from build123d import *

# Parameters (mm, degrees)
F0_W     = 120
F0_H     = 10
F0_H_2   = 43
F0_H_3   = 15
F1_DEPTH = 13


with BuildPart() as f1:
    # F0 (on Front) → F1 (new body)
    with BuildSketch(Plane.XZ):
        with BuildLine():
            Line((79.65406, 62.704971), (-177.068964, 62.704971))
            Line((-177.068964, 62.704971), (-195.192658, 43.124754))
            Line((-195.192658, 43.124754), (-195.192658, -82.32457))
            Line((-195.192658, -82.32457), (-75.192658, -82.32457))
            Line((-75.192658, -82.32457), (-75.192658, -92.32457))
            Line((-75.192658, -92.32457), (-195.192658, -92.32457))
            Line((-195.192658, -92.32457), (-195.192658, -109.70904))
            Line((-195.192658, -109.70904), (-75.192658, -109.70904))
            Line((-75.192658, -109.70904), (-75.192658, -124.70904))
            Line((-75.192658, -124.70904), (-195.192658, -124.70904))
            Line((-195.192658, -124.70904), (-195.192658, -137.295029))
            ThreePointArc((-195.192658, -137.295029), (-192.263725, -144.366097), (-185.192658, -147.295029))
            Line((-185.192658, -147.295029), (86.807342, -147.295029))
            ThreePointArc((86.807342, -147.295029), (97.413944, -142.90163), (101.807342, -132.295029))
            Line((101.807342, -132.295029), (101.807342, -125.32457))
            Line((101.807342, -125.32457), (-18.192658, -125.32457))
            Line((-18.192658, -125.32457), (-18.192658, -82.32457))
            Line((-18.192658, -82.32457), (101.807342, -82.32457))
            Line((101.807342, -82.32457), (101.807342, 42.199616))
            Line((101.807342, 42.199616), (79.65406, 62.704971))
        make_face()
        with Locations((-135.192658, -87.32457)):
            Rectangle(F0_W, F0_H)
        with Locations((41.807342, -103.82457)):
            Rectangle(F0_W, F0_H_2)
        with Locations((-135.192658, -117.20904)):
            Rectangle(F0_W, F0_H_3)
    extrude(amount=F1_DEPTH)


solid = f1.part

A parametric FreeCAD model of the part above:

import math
import FreeCAD as App
import Part
import Sketcher

V = App.Vector
Q = App.Units.Quantity

doc = App.newDocument("Part")
params = doc.addObject("Spreadsheet::Sheet", "Params")
for row, (alias, value) in enumerate([
    ("sketch1_radius", "10.000001 mm"),
    ("sketch1_radius2", "15.000001 mm"),
    ("sketch1_width", "272 mm"),
    ("pad1_length", "13 mm"),
], start=1):
    params.set(f"A{row}", alias)
    params.set(f"B{row}", "=" + value)
    params.setAlias(f"B{row}", alias)

body = doc.addObject("PartDesign::Body", "Body")

# Sketch on XZ plane
sketch1 = body.newObject("Sketcher::SketchObject", "Sketch")
sketch1.AttachmentSupport = (doc.getObject("XZ_Plane"), [""])
sketch1.MapMode = "FlatFace"
sketch1.addGeometry([
    Part.LineSegment(V(80, 63, 0), V(-177, 63, 0)),  # 0
    Part.LineSegment(V(-177, 63, 0), V(-195, 43, 0)),  # 1
    Part.LineSegment(V(-195, 43, 0), V(-195, -137, 0)),  # 2
    Part.ArcOfCircle(Part.Circle(V(-185, -137, 0), V(0, 0, 1), 10), math.radians(-180), math.radians(-90)),  # 3
    Part.LineSegment(V(-185, -147, 0), V(87, -147, 0)),  # 4
    Part.ArcOfCircle(Part.Circle(V(87, -132, 0), V(0, 0, 1), 15), math.radians(-90), math.radians(0)),  # 5
    Part.LineSegment(V(102, -132, 0), V(102, 42, 0)),  # 6
    Part.LineSegment(V(102, 42, 0), V(80, 63, 0)),  # 7
], False)
sketch1.addConstraint([
    Sketcher.Constraint("Coincident", 0, 2, 1, 1),
    Sketcher.Constraint("Coincident", 1, 2, 2, 1),
    Sketcher.Constraint("Tangent", 2, 2, 3, 1),
    Sketcher.Constraint("Tangent", 3, 2, 4, 1),
    Sketcher.Constraint("Tangent", 4, 2, 5, 1),
    Sketcher.Constraint("Tangent", 5, 2, 6, 1),
    Sketcher.Constraint("Coincident", 6, 2, 7, 1),
    Sketcher.Constraint("Coincident", 7, 2, 0, 1),
    Sketcher.Constraint("Horizontal", 0),
    Sketcher.Constraint("Vertical", 2),
    Sketcher.Constraint("Horizontal", 4),
    Sketcher.Constraint("Vertical", 6),
    Sketcher.Constraint("Perpendicular", 1, 7),
    Sketcher.Constraint("Radius", 3, Q("10.000001 mm")),
    Sketcher.Constraint("Radius", 5, Q("15.000001 mm")),
    Sketcher.Constraint("DistanceX", 4, 1, 4, 2, Q("272 mm")),
    Sketcher.Constraint("DistanceY", 3, 3, 0, 2, Q("199.999999 mm")),
    Sketcher.Constraint("Distance", 7, Q("30.18671 mm")),
    Sketcher.Constraint("DistanceX", 0, 2, 0, 1, Q("256.723024 mm")),
    Sketcher.Constraint("DistanceY", 2, 2, 2, 1, Q("180.419783 mm")),
    Sketcher.Constraint("DistanceX", -1, 1, 5, 3, Q("86.807341 mm")),
    Sketcher.Constraint("DistanceY", 5, 3, -1, 1, Q("132.295028 mm")),
])
sketch1.setExpression("Constraints[13]", "Params.sketch1_radius")
sketch1.setExpression("Constraints[14]", "Params.sketch1_radius2")
sketch1.setExpression("Constraints[15]", "Params.sketch1_width")
pad1 = body.newObject("PartDesign::Pad", "Pad")
pad1.Profile = sketch1
pad1.setExpression("Length", "Params.pad1_length")

doc.recompute()
